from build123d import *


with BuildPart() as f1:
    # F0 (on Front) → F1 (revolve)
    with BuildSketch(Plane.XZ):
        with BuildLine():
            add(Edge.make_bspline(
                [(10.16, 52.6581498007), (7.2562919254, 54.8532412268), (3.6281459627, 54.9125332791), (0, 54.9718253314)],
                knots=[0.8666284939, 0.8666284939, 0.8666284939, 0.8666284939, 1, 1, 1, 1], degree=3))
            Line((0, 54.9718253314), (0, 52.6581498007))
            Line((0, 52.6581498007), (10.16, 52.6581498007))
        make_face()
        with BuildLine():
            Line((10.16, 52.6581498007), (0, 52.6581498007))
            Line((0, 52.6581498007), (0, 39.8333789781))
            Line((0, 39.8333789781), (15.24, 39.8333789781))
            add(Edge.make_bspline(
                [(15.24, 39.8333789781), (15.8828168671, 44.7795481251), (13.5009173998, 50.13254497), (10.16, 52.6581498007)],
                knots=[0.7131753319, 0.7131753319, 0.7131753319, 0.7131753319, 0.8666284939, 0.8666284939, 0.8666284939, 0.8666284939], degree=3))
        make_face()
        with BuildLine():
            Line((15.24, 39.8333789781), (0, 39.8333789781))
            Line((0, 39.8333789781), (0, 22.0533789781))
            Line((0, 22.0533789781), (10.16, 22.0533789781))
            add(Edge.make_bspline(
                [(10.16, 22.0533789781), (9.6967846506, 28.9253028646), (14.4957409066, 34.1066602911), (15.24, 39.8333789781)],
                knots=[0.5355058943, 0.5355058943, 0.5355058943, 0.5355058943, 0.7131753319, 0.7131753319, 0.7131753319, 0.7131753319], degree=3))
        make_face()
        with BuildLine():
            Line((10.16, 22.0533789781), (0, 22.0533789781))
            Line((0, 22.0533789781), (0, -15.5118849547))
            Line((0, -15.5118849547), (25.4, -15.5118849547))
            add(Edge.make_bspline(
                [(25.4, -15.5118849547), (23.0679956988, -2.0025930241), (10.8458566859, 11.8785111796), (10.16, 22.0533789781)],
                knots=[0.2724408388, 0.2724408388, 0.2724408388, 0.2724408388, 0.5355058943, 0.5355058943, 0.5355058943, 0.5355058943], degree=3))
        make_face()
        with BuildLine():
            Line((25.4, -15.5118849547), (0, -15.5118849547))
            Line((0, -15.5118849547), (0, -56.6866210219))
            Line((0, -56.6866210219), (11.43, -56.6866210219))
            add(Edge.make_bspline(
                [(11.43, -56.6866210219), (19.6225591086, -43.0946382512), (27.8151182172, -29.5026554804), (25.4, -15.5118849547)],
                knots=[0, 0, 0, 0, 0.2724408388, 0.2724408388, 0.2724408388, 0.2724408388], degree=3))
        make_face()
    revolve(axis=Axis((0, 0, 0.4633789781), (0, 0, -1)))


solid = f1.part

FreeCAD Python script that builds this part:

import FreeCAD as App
import Part
import Sketcher
from FreeCAD import Vector

doc = App.newDocument("Part")
body = doc.addObject("PartDesign::Body", "Body")

sketch1 = body.newObject("Sketcher::SketchObject", "Sketch")
sketch1.AttachmentSupport = (doc.getObject("XZ_Plane"), [""])
sketch1.MapMode = "FlatFace"
sketch1.addGeometry([
    Part.BSplineCurve([Vector(10.16, 52.65815, 0), Vector(7.256292, 54.853241, 0), Vector(3.628146, 54.912533, 0), Vector(0, 54.971825, 0)], [4, 4], [0.866628494, 1], False, 3, [1, 1, 1, 1], False),
    Part.LineSegment(Vector(0, 54.971825, 0), Vector(0, -56.686621, 0)),
    Part.LineSegment(Vector(0, -56.686621, 0), Vector(11.43, -56.686621, 0)),
    Part.BSplineCurve([Vector(11.43, -56.686621, 0), Vector(19.622559, -43.094638, 0), Vector(35.725738, -16.378427, 0), Vector(10.845857, 11.878511, 0), Vector(10.16, 22.053379, 0)], [4, 1, 4], [0, 0.272440839, 0.535505894], False, 3, [1, 1, 1, 1, 1], False),
    Part.BSplineCurve([Vector(10.16, 22.053379, 0), Vector(9.696785, 28.925303, 0), Vector(18.640601, 38.581801, 0), Vector(13.500917, 50.132545, 0), Vector(10.16, 52.65815, 0)], [4, 1, 4], [0.535505894, 0.713175332, 0.866628494], False, 3, [1, 1, 1, 1, 1], False),
], False)
sketch1.addConstraint([
    Sketcher.Constraint("Block", 0),
    Sketcher.Constraint("Block", 3),
    Sketcher.Constraint("Block", 4),
    Sketcher.Constraint("Coincident", 0, 2, 1, 1),
    Sketcher.Constraint("Coincident", 1, 2, 2, 1),
    Sketcher.Constraint("Coincident", 2, 2, 3, 1),
    Sketcher.Constraint("Vertical", 1),
    Sketcher.Constraint("Horizontal", 2),
])
revolution = body.newObject("PartDesign::Revolution", "Revolution")
revolution.Profile = sketch1
revolution.ReferenceAxis = (sketch1, ["V_Axis"])
revolution.Angle = 360

doc.recompute()
